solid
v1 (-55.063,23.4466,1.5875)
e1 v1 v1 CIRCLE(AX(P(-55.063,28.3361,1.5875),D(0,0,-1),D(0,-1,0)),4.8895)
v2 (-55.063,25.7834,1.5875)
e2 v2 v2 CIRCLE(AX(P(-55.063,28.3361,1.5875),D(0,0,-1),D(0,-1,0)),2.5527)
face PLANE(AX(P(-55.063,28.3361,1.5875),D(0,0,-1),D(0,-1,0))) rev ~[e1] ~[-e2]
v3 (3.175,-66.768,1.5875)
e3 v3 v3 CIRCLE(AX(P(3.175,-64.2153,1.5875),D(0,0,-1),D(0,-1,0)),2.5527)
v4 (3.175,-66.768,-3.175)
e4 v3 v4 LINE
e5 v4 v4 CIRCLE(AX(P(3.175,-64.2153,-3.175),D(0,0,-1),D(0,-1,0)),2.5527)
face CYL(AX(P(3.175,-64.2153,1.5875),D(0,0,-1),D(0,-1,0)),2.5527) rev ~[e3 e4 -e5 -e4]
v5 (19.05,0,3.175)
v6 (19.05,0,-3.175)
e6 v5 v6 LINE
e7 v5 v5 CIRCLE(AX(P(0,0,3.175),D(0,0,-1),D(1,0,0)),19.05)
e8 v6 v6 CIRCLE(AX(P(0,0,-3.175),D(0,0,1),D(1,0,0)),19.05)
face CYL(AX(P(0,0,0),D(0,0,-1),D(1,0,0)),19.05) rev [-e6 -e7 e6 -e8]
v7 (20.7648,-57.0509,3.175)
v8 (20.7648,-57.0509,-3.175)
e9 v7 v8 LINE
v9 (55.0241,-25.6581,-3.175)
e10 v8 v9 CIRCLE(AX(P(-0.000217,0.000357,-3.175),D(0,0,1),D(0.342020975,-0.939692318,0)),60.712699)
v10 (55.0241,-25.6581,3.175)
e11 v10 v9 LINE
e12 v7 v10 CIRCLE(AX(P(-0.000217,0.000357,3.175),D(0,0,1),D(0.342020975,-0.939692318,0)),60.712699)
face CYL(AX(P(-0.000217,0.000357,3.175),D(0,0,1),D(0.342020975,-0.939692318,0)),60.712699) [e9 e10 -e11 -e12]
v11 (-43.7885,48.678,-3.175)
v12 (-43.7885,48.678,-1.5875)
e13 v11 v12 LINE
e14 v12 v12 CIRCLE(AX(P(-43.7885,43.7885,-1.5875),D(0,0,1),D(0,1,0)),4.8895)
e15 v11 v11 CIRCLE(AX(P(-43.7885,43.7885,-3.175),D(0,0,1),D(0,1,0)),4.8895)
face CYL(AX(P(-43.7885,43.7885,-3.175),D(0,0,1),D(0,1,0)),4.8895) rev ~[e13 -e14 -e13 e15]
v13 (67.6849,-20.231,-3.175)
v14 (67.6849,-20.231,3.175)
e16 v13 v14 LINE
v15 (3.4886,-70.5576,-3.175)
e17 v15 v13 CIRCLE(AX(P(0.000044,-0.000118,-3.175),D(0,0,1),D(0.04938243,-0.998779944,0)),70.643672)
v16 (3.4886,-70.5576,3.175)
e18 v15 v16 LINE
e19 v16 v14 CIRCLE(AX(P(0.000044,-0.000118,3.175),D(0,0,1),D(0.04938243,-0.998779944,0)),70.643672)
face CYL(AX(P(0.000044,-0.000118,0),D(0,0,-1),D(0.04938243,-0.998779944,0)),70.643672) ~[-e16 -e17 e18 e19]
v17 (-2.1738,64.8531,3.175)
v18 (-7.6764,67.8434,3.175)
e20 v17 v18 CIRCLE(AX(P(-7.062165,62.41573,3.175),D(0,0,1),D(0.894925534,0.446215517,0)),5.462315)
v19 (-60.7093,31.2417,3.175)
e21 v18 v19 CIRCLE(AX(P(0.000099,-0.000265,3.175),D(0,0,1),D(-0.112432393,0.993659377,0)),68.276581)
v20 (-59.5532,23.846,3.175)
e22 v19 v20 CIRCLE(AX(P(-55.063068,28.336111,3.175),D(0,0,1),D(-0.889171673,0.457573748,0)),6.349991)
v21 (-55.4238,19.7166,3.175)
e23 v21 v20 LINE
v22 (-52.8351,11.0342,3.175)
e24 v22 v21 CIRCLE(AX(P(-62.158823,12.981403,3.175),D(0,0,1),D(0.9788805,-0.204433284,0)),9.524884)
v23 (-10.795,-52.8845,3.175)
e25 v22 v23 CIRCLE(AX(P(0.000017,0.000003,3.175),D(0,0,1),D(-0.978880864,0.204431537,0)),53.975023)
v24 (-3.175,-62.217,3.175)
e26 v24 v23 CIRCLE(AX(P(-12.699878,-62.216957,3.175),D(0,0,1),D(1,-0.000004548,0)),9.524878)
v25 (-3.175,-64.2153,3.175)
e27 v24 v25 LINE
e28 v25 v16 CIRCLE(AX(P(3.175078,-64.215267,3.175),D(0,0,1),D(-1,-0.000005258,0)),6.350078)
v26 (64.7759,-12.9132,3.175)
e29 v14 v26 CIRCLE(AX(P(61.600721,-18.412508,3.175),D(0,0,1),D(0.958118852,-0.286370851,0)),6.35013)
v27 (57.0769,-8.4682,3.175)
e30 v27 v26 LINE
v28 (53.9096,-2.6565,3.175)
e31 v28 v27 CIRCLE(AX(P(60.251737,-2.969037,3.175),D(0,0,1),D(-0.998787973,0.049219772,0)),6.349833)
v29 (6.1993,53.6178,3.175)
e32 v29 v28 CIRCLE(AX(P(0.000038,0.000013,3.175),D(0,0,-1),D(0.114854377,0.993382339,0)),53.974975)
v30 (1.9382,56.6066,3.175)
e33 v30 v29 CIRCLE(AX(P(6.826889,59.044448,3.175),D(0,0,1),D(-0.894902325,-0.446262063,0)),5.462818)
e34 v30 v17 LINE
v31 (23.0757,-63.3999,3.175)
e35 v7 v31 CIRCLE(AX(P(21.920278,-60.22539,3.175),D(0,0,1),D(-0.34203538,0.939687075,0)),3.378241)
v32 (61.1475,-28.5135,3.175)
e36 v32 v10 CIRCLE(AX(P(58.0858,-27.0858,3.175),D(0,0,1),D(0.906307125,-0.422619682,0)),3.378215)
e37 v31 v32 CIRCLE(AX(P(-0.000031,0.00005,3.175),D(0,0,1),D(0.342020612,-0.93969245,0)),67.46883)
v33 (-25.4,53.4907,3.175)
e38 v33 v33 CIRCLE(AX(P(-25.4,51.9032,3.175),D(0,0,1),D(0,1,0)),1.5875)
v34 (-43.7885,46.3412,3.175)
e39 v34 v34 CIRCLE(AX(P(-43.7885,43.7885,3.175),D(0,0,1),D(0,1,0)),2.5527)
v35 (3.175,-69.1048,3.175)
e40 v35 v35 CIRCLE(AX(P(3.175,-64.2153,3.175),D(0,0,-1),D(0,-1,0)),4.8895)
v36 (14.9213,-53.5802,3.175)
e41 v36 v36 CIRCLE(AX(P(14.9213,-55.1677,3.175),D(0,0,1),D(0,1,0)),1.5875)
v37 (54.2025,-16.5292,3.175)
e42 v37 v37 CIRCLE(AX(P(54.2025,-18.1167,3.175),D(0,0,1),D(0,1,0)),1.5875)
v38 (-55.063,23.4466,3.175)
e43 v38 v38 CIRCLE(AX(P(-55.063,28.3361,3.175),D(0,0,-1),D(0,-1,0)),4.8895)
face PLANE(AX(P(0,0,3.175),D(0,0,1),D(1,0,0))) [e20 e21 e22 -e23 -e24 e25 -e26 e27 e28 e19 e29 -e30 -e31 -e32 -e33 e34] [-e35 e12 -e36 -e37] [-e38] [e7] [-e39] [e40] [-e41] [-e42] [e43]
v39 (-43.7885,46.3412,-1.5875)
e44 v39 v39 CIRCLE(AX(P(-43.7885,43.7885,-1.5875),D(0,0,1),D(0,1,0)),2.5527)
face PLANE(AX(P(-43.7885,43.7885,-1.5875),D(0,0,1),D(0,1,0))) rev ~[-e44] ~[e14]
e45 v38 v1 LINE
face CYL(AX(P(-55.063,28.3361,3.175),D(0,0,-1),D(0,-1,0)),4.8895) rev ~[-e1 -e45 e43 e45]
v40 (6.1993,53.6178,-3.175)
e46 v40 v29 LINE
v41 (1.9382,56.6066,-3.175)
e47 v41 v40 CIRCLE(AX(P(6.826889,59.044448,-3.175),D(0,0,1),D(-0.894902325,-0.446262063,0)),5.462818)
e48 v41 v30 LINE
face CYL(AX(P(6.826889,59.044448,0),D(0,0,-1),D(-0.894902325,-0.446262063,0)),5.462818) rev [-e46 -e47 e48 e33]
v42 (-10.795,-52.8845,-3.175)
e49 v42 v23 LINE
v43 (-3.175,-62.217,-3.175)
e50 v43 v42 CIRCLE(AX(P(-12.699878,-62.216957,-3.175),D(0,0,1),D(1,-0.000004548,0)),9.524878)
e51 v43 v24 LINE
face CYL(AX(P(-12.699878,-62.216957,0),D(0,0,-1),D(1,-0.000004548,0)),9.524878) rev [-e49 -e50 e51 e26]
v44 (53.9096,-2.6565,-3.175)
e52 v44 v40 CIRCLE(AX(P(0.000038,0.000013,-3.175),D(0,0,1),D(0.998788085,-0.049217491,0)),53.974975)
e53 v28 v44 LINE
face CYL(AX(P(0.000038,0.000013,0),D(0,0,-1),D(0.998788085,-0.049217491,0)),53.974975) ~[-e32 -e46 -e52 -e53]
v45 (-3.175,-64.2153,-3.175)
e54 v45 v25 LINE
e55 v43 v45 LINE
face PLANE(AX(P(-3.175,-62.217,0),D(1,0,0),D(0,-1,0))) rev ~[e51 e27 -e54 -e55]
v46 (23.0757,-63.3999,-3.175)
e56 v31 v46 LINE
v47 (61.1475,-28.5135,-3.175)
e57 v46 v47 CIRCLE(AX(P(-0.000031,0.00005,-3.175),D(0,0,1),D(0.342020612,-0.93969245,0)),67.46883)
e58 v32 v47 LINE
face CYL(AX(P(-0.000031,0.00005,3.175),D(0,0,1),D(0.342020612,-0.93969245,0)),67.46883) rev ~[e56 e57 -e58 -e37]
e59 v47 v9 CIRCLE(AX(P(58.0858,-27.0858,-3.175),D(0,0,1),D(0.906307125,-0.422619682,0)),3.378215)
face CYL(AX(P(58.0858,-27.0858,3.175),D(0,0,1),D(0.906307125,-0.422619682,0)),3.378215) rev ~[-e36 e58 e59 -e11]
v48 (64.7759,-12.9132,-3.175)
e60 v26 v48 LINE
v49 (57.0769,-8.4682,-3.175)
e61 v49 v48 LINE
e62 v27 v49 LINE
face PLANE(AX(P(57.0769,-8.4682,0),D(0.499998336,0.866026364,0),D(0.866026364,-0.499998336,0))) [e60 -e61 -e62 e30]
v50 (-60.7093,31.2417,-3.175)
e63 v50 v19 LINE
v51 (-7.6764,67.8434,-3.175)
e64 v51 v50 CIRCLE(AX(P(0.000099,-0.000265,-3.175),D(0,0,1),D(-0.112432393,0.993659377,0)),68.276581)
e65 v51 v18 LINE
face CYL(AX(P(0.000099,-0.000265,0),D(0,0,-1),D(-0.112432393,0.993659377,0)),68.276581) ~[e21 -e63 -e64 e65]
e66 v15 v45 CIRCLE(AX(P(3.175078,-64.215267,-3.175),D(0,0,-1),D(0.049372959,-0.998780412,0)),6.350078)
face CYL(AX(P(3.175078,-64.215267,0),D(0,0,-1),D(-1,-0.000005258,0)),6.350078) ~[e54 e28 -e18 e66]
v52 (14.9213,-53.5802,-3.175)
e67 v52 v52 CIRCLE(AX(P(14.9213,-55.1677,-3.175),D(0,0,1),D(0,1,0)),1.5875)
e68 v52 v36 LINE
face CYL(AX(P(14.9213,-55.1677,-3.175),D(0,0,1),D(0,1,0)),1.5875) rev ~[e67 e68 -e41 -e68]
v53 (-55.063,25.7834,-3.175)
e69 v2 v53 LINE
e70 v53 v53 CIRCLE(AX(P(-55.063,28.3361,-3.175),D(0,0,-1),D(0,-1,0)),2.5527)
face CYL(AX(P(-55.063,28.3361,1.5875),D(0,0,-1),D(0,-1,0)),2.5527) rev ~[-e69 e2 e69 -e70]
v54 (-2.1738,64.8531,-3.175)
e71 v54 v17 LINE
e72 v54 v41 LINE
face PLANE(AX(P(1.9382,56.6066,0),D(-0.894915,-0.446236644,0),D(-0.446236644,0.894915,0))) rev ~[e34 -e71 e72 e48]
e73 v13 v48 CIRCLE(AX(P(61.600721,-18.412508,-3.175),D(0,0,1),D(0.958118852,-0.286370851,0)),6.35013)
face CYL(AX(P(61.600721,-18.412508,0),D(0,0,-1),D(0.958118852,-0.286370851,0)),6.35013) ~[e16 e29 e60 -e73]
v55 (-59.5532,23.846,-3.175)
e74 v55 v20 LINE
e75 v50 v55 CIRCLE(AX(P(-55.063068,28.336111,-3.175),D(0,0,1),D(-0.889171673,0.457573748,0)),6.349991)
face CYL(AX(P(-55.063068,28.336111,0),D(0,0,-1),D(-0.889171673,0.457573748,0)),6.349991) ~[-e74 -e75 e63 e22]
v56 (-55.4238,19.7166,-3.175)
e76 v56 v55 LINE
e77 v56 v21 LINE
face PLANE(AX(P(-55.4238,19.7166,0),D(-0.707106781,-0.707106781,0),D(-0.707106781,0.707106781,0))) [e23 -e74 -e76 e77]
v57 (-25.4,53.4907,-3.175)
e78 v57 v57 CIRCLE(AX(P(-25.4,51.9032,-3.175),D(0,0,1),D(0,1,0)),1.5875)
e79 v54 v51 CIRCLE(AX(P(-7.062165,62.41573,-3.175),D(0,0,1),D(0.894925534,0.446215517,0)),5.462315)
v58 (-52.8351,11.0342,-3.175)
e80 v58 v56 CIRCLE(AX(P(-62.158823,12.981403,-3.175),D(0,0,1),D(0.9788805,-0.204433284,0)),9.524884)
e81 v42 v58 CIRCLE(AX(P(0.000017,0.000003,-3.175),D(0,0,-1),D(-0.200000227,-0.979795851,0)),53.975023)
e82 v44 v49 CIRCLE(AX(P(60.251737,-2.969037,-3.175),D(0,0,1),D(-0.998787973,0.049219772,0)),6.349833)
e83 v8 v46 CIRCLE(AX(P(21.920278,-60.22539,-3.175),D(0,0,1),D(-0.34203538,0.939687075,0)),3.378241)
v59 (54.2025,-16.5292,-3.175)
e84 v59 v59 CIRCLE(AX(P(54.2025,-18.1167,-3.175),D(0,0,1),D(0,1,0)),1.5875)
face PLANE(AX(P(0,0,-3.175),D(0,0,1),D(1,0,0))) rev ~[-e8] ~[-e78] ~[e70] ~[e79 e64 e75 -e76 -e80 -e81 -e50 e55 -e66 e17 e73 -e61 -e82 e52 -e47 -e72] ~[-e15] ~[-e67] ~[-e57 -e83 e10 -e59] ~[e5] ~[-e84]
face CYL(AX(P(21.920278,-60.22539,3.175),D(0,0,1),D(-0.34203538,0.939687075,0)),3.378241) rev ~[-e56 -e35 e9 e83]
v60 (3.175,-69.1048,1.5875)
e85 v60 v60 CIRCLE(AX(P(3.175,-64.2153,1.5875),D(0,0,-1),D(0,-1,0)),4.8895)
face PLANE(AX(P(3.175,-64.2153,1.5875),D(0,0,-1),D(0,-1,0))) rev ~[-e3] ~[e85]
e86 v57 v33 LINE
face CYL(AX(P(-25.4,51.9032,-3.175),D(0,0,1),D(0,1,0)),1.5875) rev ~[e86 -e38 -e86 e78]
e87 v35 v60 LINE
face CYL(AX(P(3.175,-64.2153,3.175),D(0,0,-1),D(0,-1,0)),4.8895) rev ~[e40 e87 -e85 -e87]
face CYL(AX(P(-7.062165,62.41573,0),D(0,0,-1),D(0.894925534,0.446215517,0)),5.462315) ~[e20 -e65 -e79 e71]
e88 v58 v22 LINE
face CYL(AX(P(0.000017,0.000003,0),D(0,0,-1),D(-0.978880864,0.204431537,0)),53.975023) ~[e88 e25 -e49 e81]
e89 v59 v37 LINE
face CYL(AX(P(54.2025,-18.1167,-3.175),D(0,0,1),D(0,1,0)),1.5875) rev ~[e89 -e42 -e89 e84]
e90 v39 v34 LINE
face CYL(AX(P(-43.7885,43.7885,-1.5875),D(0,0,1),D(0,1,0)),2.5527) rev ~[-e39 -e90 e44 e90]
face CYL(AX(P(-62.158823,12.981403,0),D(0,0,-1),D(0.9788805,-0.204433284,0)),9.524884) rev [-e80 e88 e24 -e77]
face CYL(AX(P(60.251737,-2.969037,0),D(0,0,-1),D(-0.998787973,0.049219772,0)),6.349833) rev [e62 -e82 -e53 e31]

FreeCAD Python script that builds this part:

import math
import FreeCAD as App
import Part
import Sketcher

V = App.Vector
Q = App.Units.Quantity

doc = App.newDocument("Part")
body = doc.addObject("PartDesign::Body", "Body")

# Sketch on XY plane
sketch1 = doc.addObject("Sketcher::SketchObject", "Sketch")
body.addObject(sketch1)
sketch1.AttachmentSupport = (doc.XY_Plane, [""])
sketch1.MapMode = "FlatFace"
sketch1.addGeometry([
    Part.ArcOfCircle(Part.Circle(V(0, 0, 0), V(0, 0, 1), 54), math.radians(-3), math.radians(83)),  # 0
    Part.ArcOfCircle(Part.Circle(V(6.8, 59, 0), V(0, 0, 1), 5.5), math.radians(-153), math.radians(-97)),  # 1
    Part.LineSegment(V(1.9, 56.6, 0), V(-2.2, 64.9, 0)),  # 2
    Part.ArcOfCircle(Part.Circle(V(-7.1, 62.4, 0), V(0, 0, 1), 5.5), math.radians(27), math.radians(96)),  # 3
    Part.ArcOfCircle(Part.Circle(V(0, 0, 0), V(0, 0, 1), 68.3), math.radians(96), math.radians(153)),  # 4
    Part.ArcOfCircle(Part.Circle(V(-55.1, 28.3, 0), V(0, 0, 1), 6.4), math.radians(153), math.radians(225)),  # 5
    Part.LineSegment(V(-59.6, 23.8, 0), V(-55.4, 19.7, 0)),  # 6
    Part.ArcOfCircle(Part.Circle(V(-62.2, 13, 0), V(0, 0, 1), 9.5), math.radians(-12), math.radians(45)),  # 7
    Part.ArcOfCircle(Part.Circle(V(0, 0, 0), V(0, 0, 1), 54), math.radians(168), math.radians(258)),  # 8
    Part.ArcOfCircle(Part.Circle(V(-12.7, -62.2, 0), V(0, 0, 1), 9.5), math.radians(0), math.radians(78)),  # 9
    Part.LineSegment(V(-3.2, -62.2, 0), V(-3.2, -64.2, 0)),  # 10
    Part.ArcOfCircle(Part.Circle(V(3.2, -64.2, 0), V(0, 0, 1), 6.3), math.radians(180), math.radians(273)),  # 11
    Part.ArcOfCircle(Part.Circle(V(0, 0, 0), V(0, 0, 1), 70.6), math.radians(-87), math.radians(-17)),  # 12
    Part.ArcOfCircle(Part.Circle(V(61.6, -18.4, 0), V(0, 0, 1), 6.3), math.radians(-17), math.radians(60)),  # 13
    Part.LineSegment(V(64.8, -12.9, 0), V(57.1, -8.5, 0)),  # 14
    Part.ArcOfCircle(Part.Circle(V(60.3, -3, 0), V(0, 0, 1), 6.3), math.radians(177), math.radians(240)),  # 15
    Part.Circle(V(0, 0, 0), V(0, 0, 1), 19.1),  # 16
], False)
sketch1.addConstraint([
    Sketcher.Constraint("Tangent", 0, 2, 1, 2),
    Sketcher.Constraint("Tangent", 1, 1, 2, 1),
    Sketcher.Constraint("Tangent", 2, 2, 3, 1),
    Sketcher.Constraint("Tangent", 3, 2, 4, 1),
    Sketcher.Constraint("Tangent", 4, 2, 5, 1),
    Sketcher.Constraint("Tangent", 5, 2, 6, 1),
    Sketcher.Constraint("Tangent", 6, 2, 7, 2),
    Sketcher.Constraint("Tangent", 7, 1, 8, 1),
    Sketcher.Constraint("Tangent", 8, 2, 9, 2),
    Sketcher.Constraint("Tangent", 9, 1, 10, 1),
    Sketcher.Constraint("Tangent", 10, 2, 11, 1),
    Sketcher.Constraint("Tangent", 11, 2, 12, 1),
    Sketcher.Constraint("Tangent", 12, 2, 13, 1),
    Sketcher.Constraint("Tangent", 13, 2, 14, 1),
    Sketcher.Constraint("Tangent", 14, 2, 15, 2),
    Sketcher.Constraint("Tangent", 15, 1, 0, 1),
    Sketcher.Constraint("Vertical", 10),
    Sketcher.Constraint("Coincident", 0, 3, -1, 1),
    Sketcher.Constraint("Coincident", 4, 3, -1, 1),
    Sketcher.Constraint("Coincident", 8, 3, -1, 1),
    Sketcher.Constraint("Coincident", 12, 3, -1, 1),
    Sketcher.Constraint("Coincident", 16, 3, -1, 1),
    Sketcher.Constraint("Equal", 1, 3),
    Sketcher.Constraint("Equal", 0, 8),
    Sketcher.Constraint("Equal", 7, 9),
    Sketcher.Constraint("Equal", 5, 11),
    Sketcher.Constraint("Equal", 11, 13),
    Sketcher.Constraint("Equal", 13, 15),
    Sketcher.Constraint("Diameter", 16, Q("1.5 in")),
    Sketcher.Constraint("Radius", 5, Q("0.25 in")),
    Sketcher.Constraint("Angle", 6, Q("-45 deg")),
    Sketcher.Constraint("Radius", 0, Q("2.125 in")),
    Sketcher.Constraint("Radius", 7, Q("0.375 in")),
    Sketcher.Constraint("Radius", 12, Q("2.781252 in")),
    Sketcher.Constraint("Distance", 14, Q("0.35 in")),
    Sketcher.Constraint("Radius", 1, 5.4624),
    Sketcher.Constraint("DistanceX", -1, 1, 11, 3, Q("0.125 in")),
    Sketcher.Constraint("Angle", 14, Q("150 deg")),
    Sketcher.Constraint("Radius", 4, 68.2763),
    Sketcher.Constraint("DistanceX", 4, 2, 7, 1, Q("0.31 in")),
    Sketcher.Constraint("DistanceY", -1, 1, 3, 2, Q("2.671 in")),
    Sketcher.Constraint("Distance", 2, Q("0.3628 in")),
])
pad1 = doc.addObject("PartDesign::Pad", "Pad")
body.addObject(pad1)
pad1.Profile = sketch1
pad1.Length = Q("0.25 in")
pad1.Midplane = True

# Sketch on XY plane
sketch2 = doc.addObject("Sketcher::SketchObject", "Sketch001")
body.addObject(sketch2)
sketch2.AttachmentSupport = (doc.XY_Plane, [""])
sketch2.MapMode = "FlatFace"
sketch2.AttachmentOffset = App.Placement(V(0, 0, -0.125 * 25.4), App.Rotation())
sketch2.addGeometry([
    Part.Circle(V(25.4, 51.9, 0), V(0, 0, 1), 1.6),
    Part.Circle(V(-25.4, 51.9, 0), V(0, 0, 1), 1.6),
    Part.Circle(V(14.9, -55.2, 0), V(0, 0, 1), 1.6),
    Part.Circle(V(54.2, -18.1, 0), V(0, 0, 1), 1.6),
], False)
sketch2.addConstraint([
    Sketcher.Constraint("Equal", 0, 1),
    Sketcher.Constraint("Equal", 1, 2),
    Sketcher.Constraint("Equal", 2, 3),
    Sketcher.Constraint("Symmetric", 0, 3, 1, 3, -2),
    Sketcher.Constraint("Diameter", 0, Q("0.125 in")),
    Sketcher.Constraint("DistanceX", -1, 1, 0, 3, Q("1 in")),
    Sketcher.Constraint("DistanceY", 2, 3, 0, 3, Q("4.2154 in")),
    Sketcher.Constraint("DistanceX", 2, 3, 3, 3, Q("1.5465 in")),
    Sketcher.Constraint("DistanceY", 2, 3, 3, 3, Q("1.4587 in")),
    Sketcher.Constraint("DistanceY", -1, 1, 0, 3, 51.9032),
    Sketcher.Constraint("DistanceX", -1, 1, 2, 3, 14.9213),
])
doc.recompute()
hole = doc.addObject("PartDesign::Hole", "Hole")
body.addObject(hole)
hole.Profile = sketch2
hole.ThreadType = "None"
hole.Diameter = Q("0.125 in")
hole.DepthType = "ThroughAll"
hole.Reversed = True

# Sketch on XY plane
sketch3 = doc.addObject("Sketcher::SketchObject", "Sketch002")
body.addObject(sketch3)
sketch3.AttachmentSupport = (doc.XY_Plane, [""])
sketch3.MapMode = "FlatFace"
sketch3.AttachmentOffset = App.Placement(V(0, 0, 0.125 * 25.4), App.Rotation())
sketch3.addGeometry([
    Part.Circle(V(3.2, -64.2, 0), V(0, 0, 1), 2.6),
    Part.Circle(V(-55.1, 28.3, 0), V(0, 0, 1), 2.6),
], False)
sketch3.addConstraint([
    Sketcher.Constraint("Equal", 0, 1),
    Sketcher.Constraint("Diameter", 0, Q("0.201 in")),
    Sketcher.Constraint("DistanceX", -1, 1, 0, 3, Q("0.125 in")),
    Sketcher.Constraint("DistanceY", -1, 1, 1, 3, Q("1.1156 in")),
    Sketcher.Constraint("DistanceY", 0, 3, -1, 1, 64.2153),
    Sketcher.Constraint("DistanceX", 1, 3, -1, 1, 55.063),
])
doc.recompute()
hole2 = doc.addObject("PartDesign::Hole", "Hole001")
body.addObject(hole2)
hole2.Profile = sketch3
hole2.ThreadType = "None"
hole2.Diameter = Q("0.201 in")
hole2.DepthType = "ThroughAll"
hole2.HoleCutType = "Counterbore"
hole2.HoleCutDiameter = Q("0.385 in")
hole2.HoleCutDepth = Q("0.0625 in")

# Sketch on XY plane
sketch4 = doc.addObject("Sketcher::SketchObject", "Sketch003")
body.addObject(sketch4)
sketch4.AttachmentSupport = (doc.XY_Plane, [""])
sketch4.MapMode = "FlatFace"
sketch4.AttachmentOffset = App.Placement(V(0, 0, -0.125 * 25.4), App.Rotation())
sketch4.addGeometry(Part.Circle(V(-43.8, 43.8, 0), V(0, 0, 1), 2.6), False)
sketch4.addConstraint([
    Sketcher.Constraint("Diameter", 0, Q("0.201 in")),
    Sketcher.Constraint("DistanceX", 0, 3, -1, 1, 43.7885),
    Sketcher.Constraint("DistanceY", -1, 1, 0, 3, 43.7885),
])
doc.recompute()
hole3 = doc.addObject("PartDesign::Hole", "Hole002")
body.addObject(hole3)
hole3.Profile = sketch4
hole3.ThreadType = "None"
hole3.Diameter = Q("0.201 in")
hole3.DepthType = "ThroughAll"
hole3.HoleCutType = "Counterbore"
hole3.HoleCutDiameter = Q("0.385 in")
hole3.HoleCutDepth = Q("0.0625 in")
hole3.Reversed = True

# Sketch on XY plane
sketch5 = doc.addObject("Sketcher::SketchObject", "Sketch004")
body.addObject(sketch5)
sketch5.AttachmentSupport = (doc.XY_Plane, [""])
sketch5.MapMode = "FlatFace"
sketch5.AttachmentOffset = App.Placement(V(0, 0, 0.125 * 25.4), App.Rotation())
sketch5.addGeometry([
    Part.ArcOfCircle(Part.Circle(V(0, 0, 0), V(0, 0, 1), 60.7), math.radians(-70), math.radians(-25)),
    Part.ArcOfCircle(Part.Circle(V(21.9, -60.2, 0), V(0, 0, 1), 3.4), math.radians(110), math.radians(290)),
    Part.ArcOfCircle(Part.Circle(V(0, 0, 0), V(0, 0, 1), 67.5), math.radians(-70), math.radians(-25)),
    Part.ArcOfCircle(Part.Circle(V(58.1, -27.1, 0), V(0, 0, 1), 3.4), math.radians(-25), math.radians(155)),
], False)
sketch5.addConstraint([
    Sketcher.Constraint("Tangent", 0, 1, 1, 1),
    Sketcher.Constraint("Tangent", 1, 2, 2, 1),
    Sketcher.Constraint("Tangent", 2, 2, 3, 1),
    Sketcher.Constraint("Tangent", 3, 2, 0, 2),
    Sketcher.Constraint("Coincident", 0, 3, -1, 1),
    Sketcher.Constraint("Coincident", 2, 3, -1, 1),
    Sketcher.Constraint("Radius", 1, Q("0.133 in")),
    Sketcher.Constraint("Radius", 2, Q("2.656252 in")),
    Sketcher.Constraint("DistanceY", 1, 2, 1, 3, 3.1745),
    Sketcher.Constraint("DistanceX", -1, 1, 3, 2, Q("2.1663 in")),
])
pocket1 = doc.addObject("PartDesign::Pocket", "Pocket")
body.addObject(pocket1)
pocket1.Profile = sketch5
pocket1.Type = "ThroughAll"

doc.recompute()
